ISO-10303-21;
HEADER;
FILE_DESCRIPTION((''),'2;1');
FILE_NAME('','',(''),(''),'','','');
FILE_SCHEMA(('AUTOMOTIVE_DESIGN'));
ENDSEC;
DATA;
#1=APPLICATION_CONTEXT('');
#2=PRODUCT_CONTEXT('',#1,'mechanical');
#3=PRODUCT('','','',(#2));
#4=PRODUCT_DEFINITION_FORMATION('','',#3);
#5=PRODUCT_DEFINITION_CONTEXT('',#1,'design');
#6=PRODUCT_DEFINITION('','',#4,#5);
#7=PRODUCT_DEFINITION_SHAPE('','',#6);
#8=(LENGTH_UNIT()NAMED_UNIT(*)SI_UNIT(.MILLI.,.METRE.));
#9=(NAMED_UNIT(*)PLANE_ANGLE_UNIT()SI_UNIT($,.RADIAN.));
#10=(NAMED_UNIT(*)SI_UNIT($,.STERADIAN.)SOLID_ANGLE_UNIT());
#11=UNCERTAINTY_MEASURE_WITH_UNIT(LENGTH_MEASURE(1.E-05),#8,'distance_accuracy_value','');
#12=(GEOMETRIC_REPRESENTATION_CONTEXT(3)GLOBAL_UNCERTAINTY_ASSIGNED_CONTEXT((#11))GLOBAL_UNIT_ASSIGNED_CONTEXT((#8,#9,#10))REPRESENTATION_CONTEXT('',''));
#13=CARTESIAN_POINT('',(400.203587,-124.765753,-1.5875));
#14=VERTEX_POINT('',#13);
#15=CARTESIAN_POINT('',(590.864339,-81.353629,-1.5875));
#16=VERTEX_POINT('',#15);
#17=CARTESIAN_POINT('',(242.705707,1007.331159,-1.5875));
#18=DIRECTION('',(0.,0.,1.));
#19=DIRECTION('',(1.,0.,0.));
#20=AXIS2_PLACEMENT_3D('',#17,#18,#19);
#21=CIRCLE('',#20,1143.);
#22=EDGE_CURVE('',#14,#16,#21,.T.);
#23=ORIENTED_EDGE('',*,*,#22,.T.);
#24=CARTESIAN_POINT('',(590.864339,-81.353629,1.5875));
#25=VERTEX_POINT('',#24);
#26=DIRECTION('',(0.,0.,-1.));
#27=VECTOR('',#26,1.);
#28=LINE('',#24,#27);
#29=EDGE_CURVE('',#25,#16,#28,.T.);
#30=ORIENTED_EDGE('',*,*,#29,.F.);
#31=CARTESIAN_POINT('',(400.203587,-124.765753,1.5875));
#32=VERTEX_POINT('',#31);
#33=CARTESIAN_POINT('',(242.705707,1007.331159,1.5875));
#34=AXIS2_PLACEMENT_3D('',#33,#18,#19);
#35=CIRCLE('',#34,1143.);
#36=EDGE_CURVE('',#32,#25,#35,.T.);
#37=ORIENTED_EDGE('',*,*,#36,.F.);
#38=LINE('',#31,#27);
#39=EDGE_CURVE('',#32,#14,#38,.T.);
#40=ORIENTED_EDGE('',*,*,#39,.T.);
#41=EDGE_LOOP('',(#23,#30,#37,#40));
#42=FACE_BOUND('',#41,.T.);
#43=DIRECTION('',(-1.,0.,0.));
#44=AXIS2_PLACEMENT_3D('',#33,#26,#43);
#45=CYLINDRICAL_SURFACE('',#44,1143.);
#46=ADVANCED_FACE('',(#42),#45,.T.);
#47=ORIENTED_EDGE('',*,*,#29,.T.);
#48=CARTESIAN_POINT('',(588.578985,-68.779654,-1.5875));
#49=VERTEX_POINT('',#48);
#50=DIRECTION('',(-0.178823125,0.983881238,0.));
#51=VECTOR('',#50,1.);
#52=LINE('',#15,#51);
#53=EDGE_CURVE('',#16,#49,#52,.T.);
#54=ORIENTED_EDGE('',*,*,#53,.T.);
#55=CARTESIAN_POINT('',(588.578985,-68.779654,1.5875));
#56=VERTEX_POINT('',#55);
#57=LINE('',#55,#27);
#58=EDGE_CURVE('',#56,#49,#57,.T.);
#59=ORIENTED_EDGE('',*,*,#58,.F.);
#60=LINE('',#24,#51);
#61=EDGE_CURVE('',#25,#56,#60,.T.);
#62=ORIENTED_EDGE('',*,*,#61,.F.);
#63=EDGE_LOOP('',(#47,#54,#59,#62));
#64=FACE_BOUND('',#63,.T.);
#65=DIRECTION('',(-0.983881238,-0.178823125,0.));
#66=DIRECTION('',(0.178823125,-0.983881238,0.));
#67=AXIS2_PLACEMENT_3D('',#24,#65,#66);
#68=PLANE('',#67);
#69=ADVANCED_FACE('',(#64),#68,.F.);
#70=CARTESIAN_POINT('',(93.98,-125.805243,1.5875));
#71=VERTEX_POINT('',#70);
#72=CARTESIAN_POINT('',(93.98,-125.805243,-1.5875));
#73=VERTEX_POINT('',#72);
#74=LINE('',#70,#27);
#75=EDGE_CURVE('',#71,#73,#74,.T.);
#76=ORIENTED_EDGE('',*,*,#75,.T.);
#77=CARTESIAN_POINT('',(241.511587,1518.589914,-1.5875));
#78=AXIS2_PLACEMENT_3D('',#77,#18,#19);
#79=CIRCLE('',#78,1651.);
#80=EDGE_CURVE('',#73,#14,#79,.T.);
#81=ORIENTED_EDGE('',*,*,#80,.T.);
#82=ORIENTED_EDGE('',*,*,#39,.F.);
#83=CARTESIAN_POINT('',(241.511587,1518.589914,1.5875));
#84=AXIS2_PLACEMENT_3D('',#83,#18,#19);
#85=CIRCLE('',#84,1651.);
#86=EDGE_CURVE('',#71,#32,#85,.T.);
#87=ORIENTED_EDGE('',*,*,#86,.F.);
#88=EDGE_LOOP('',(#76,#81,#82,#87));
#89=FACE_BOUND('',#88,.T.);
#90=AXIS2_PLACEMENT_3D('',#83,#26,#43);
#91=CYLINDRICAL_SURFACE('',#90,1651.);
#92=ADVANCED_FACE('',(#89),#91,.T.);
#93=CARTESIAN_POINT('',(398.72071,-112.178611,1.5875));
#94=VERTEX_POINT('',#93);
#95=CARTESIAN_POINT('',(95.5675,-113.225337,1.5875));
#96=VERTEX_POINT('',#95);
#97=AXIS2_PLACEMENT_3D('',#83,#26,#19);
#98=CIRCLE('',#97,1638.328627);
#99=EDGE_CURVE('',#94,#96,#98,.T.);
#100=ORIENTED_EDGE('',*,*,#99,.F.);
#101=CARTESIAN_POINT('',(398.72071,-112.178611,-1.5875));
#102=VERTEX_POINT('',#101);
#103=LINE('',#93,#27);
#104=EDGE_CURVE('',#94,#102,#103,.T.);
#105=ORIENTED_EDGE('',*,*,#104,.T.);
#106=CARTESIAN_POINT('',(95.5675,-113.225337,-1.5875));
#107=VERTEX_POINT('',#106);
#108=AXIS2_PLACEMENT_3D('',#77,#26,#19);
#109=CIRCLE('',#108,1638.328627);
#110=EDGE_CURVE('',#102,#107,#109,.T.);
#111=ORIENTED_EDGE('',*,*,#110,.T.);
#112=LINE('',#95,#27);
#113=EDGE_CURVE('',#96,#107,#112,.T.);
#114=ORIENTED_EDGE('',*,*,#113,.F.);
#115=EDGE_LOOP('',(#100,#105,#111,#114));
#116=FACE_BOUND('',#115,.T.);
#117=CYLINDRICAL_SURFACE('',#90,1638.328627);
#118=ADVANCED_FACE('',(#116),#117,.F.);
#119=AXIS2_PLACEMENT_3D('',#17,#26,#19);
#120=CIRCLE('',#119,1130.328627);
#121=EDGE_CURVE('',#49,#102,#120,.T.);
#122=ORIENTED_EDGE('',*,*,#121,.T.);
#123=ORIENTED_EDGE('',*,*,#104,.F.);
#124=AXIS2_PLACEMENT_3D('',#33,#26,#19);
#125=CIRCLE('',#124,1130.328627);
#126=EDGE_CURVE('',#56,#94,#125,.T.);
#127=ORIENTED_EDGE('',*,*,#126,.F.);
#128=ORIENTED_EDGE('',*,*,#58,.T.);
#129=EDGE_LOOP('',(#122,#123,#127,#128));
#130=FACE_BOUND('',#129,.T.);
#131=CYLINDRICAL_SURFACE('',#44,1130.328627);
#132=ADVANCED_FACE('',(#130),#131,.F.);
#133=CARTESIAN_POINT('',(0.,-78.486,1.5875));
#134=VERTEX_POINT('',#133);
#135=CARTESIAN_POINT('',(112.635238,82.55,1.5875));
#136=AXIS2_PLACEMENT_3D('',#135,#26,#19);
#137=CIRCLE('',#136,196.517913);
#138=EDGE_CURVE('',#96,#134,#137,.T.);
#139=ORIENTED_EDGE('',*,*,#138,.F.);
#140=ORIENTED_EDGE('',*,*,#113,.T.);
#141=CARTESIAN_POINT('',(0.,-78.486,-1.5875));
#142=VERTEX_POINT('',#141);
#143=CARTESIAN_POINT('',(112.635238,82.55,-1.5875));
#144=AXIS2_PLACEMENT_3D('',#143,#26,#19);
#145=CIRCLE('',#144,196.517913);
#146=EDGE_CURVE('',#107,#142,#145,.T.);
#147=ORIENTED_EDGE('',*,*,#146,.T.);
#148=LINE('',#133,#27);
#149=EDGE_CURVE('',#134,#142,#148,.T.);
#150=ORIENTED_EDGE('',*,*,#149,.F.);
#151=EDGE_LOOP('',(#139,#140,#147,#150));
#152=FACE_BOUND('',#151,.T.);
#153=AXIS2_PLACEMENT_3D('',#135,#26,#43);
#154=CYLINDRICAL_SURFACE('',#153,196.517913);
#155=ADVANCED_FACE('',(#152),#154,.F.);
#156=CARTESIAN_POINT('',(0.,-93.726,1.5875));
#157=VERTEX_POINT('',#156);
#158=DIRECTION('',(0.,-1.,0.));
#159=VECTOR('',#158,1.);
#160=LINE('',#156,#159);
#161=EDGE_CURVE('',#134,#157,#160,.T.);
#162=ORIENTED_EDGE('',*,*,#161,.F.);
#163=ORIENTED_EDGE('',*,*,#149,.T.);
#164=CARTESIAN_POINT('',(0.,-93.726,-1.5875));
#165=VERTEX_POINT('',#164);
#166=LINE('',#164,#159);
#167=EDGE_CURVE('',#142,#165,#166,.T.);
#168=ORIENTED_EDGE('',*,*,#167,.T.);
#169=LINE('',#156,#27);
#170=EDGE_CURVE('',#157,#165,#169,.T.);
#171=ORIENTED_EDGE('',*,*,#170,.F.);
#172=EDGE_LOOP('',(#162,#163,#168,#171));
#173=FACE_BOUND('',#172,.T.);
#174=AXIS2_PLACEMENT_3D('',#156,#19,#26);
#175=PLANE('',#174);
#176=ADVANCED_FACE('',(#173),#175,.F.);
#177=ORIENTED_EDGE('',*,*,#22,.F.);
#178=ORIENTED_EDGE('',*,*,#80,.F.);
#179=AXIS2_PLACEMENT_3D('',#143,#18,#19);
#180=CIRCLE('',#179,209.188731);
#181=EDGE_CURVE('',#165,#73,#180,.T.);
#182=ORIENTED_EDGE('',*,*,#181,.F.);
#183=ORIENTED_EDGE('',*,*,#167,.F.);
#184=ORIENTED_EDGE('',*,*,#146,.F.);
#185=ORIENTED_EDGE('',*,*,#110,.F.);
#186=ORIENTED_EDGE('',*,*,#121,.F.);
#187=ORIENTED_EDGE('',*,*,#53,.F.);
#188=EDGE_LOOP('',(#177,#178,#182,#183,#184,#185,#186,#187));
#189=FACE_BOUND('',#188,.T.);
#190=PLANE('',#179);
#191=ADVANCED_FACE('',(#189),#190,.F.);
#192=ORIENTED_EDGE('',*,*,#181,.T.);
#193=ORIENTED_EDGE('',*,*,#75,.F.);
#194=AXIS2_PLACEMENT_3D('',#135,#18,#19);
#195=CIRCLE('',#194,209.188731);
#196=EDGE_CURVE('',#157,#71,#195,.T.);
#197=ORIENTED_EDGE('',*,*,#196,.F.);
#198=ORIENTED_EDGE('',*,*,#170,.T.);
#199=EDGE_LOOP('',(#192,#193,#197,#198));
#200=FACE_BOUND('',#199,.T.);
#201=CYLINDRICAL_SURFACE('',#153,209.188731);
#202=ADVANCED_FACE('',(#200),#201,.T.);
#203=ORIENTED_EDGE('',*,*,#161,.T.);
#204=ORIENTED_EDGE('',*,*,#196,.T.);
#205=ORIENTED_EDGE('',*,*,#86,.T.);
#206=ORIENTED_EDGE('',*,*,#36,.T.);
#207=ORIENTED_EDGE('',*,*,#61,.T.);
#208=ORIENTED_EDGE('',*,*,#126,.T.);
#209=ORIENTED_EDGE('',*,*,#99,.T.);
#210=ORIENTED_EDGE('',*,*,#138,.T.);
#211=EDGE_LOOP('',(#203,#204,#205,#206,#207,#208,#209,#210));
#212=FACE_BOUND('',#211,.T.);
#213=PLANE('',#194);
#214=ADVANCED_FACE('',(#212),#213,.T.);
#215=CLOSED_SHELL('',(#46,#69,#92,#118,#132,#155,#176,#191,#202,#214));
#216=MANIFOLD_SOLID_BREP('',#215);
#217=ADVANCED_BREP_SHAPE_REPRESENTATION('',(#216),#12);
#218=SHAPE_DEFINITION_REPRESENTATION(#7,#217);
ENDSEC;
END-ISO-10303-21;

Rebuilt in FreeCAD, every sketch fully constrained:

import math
import FreeCAD as App
import Part
import Sketcher
Q = App.Units.Quantity

doc = App.newDocument("Part")
body = doc.addObject("PartDesign::Body", "Body")

# Sketch on XY plane
sketch1 = body.newObject("Sketcher::SketchObject", "Sketch")
sketch1.AttachmentSupport = (doc.getObject("XY_Plane"), [""])
sketch1.MapMode = "FlatFace"
sketch1.addGeometry([
    Part.LineSegment(App.Vector(0, -78.486, 0), App.Vector(0, -93.726, 0)),  # 0
    Part.ArcOfCircle(Part.Circle(App.Vector(112.635238, 82.55, 0), App.Vector(0, 0, 1), 209.188731), math.radians(-122.577395), math.radians(-95.116376)),  # 1
    Part.ArcOfCircle(Part.Circle(App.Vector(241.511587, 1518.589914, 0), App.Vector(0, 0, 1), 1651), math.radians(-95.126728), math.radians(-84.484288)),  # 2
    Part.ArcOfCircle(Part.Circle(App.Vector(242.705707, 1007.331159, 0), App.Vector(0, 0, 1), 1143), math.radians(-82.079819), math.radians(-72.265856)),  # 3
    Part.LineSegment(App.Vector(590.864339, -81.353629, 0), App.Vector(588.578985, -68.779654, 0)),  # 4
    Part.ArcOfCircle(Part.Circle(App.Vector(242.705707, 1007.331159, 0), App.Vector(0, 0, 1), 1130.328627), math.radians(-82.066351), math.radians(-72.182051)),  # 5
    Part.ArcOfCircle(Part.Circle(App.Vector(241.511587, 1518.589914, 0), App.Vector(0, 0, 1), 1638.328627), math.radians(-95.110745), math.radians(-84.493596)),  # 6
    Part.ArcOfCircle(Part.Circle(App.Vector(112.635238, 82.55, 0), App.Vector(0, 0, 1), 196.517913), math.radians(-124.970533), math.radians(-94.982462)),  # 7
], False)
sketch1.addConstraint([
    Sketcher.Constraint("Coincident", 0, 2, 1, 1),
    Sketcher.Constraint("Coincident", 1, 2, 2, 1),
    Sketcher.Constraint("Coincident", 2, 2, 3, 1),
    Sketcher.Constraint("Coincident", 3, 2, 4, 1),
    Sketcher.Constraint("Coincident", 4, 2, 5, 2),
    Sketcher.Constraint("Coincident", 5, 1, 6, 2),
    Sketcher.Constraint("Coincident", 6, 1, 7, 2),
    Sketcher.Constraint("Coincident", 7, 1, 0, 1),
    Sketcher.Constraint("Vertical", 0),
    Sketcher.Constraint("Coincident", 5, 3, 3, 3),
    Sketcher.Constraint("Coincident", 6, 3, 2, 3),
    Sketcher.Constraint("Coincident", 7, 3, 1, 3),
    Sketcher.Constraint("PointOnObject", 0, 2, -2),
    Sketcher.Constraint("Radius", 2, Q("65 in")),
    Sketcher.Constraint("Radius", 3, Q("45 in")),
    Sketcher.Constraint("DistanceY", 0, 2, 0, 1, Q("0.6 in")),
    Sketcher.Constraint("DistanceX", -1, 1, 1, 2, Q("3.7 in")),
    Sketcher.Constraint("DistanceY", -1, 1, 1, 3, Q("3.25 in")),
    Sketcher.Constraint("DistanceY", 0, 2, -1, 1, Q("3.69 in")),
    Sketcher.Constraint("Radius", 1, Q("209.188731 mm")),
    Sketcher.Constraint("DistanceX", 1, 2, 6, 1, Q("0.0625 in")),
    Sketcher.Constraint("Radius", 5, Q("1130.328627 mm")),
    Sketcher.Constraint("DistanceY", 1, 2, 5, 3, Q("1133.136401 mm")),
    Sketcher.Constraint("DistanceY", 2, 2, 4, 2, Q("55.9861 mm")),
    Sketcher.Constraint("DistanceX", 1, 3, 2, 3, Q("128.876349 mm")),
    Sketcher.Constraint("DistanceX", 2, 3, 3, 3, Q("1.194121 mm")),
    Sketcher.Constraint("Distance", 4, Q("12.779973 mm")),
])
pad1 = body.newObject("PartDesign::Pad", "Pad")
pad1.Profile = sketch1
pad1.Length = Q("0.125 in")
pad1.Midplane = True

doc.recompute()
